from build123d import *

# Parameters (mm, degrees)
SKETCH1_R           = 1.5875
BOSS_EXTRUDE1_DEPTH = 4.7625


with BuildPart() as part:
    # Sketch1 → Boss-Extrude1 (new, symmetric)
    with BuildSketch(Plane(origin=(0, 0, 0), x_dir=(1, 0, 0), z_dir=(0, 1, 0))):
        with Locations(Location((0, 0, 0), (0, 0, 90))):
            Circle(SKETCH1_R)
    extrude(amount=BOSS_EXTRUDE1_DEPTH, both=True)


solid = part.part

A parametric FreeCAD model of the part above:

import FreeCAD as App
import Part
import Sketcher

V = App.Vector
Q = App.Units.Quantity

doc = App.newDocument("Part")
body = doc.addObject("PartDesign::Body", "Body")

# Sketch on XZ plane
sketch1 = doc.addObject("Sketcher::SketchObject", "Sketch")
body.addObject(sketch1)
sketch1.AttachmentSupport = (doc.XZ_Plane, [""])
sketch1.MapMode = "FlatFace"
sketch1.addGeometry(Part.Circle(V(0, 0, 0), V(0, 0, 1), 1.6), False)
sketch1.addConstraint([
    Sketcher.Constraint("Coincident", 0, 3, -1, 1),
    Sketcher.Constraint("Diameter", 0, Q("0.125 in")),
])
pad1 = doc.addObject("PartDesign::Pad", "Pad")
body.addObject(pad1)
pad1.Profile = sketch1
pad1.Length = Q("0.375 in")
pad1.Midplane = True

doc.recompute()
